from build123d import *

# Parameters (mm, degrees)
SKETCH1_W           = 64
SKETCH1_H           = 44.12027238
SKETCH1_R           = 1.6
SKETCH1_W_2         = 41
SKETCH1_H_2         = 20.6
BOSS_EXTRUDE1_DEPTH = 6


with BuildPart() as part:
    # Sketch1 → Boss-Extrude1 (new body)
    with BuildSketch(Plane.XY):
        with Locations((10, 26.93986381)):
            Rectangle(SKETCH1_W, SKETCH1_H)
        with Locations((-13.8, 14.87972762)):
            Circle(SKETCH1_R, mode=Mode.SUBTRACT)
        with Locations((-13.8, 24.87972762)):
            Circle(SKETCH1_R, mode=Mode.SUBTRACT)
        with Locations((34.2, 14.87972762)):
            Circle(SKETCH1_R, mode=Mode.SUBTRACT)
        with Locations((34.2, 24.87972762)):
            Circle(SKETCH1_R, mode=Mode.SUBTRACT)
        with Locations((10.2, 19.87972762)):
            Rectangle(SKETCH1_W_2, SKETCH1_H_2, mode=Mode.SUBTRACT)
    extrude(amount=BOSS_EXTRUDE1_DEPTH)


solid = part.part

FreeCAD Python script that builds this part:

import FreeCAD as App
import Part
import Sketcher

V = App.Vector


def add_polygon(sketch, points):
    """Adds a closed chain of lines whose ends are joined by coincident constraints."""
    first, n = sketch.GeometryCount, len(points)
    for a, b in zip(points, points[1:] + points[:1]):
        sketch.addGeometry(Part.LineSegment(App.Vector(*a, 0), App.Vector(*b, 0)), False)
    for i in range(n):
        sketch.addConstraint(Sketcher.Constraint("Coincident", first + i, 2, first + (i + 1) % n, 1))

doc = App.newDocument("Part")
params = doc.addObject("Spreadsheet::Sheet", "Params")
for row, (alias, value) in enumerate([
    ("sketch1_diameter", "3.2 mm"),
    ("sketch1_width", "64 mm"),
    ("sketch1_width2", "41 mm"),
    ("sketch1_height", "20.6 mm"),
    ("pad1_length", "6 mm"),
], start=1):
    params.set(f"A{row}", alias)
    params.set(f"B{row}", "=" + value)
    params.setAlias(f"B{row}", alias)

body = doc.addObject("PartDesign::Body", "Body")

# Sketch on XY plane
sketch1 = body.newObject("Sketcher::SketchObject", "Sketch")
sketch1.AttachmentSupport = (doc.getObject("XY_Plane"), [""])
sketch1.MapMode = "FlatFace"
add_polygon(sketch1, [(-22, 49), (-22, 4.879728), (42, 4.879728), (42, 49)])  # lines 0-3
sketch1.addGeometry(Part.Circle(V(-13.8, 14.879728, 0), V(0, 0, 1), 1.6), False)  # 4
sketch1.addGeometry(Part.Circle(V(34.2, 14.879728, 0), V(0, 0, 1), 1.6), False)  # 5
sketch1.addGeometry(Part.Circle(V(-13.8, 24.879728, 0), V(0, 0, 1), 1.6), False)  # 6
add_polygon(sketch1, [(30.7, 9.579728), (-10.3, 9.579728), (-10.3, 30.179728), (30.7, 30.179728)])  # lines 7-10
sketch1.addGeometry(Part.Circle(V(34.2, 24.879728, 0), V(0, 0, 1), 1.6), False)  # 11
sketch1.addConstraint([
    Sketcher.Constraint("Vertical", 0),
    Sketcher.Constraint("Horizontal", 1),
    Sketcher.Constraint("Vertical", 2),
    Sketcher.Constraint("Horizontal", 3),
    Sketcher.Constraint("Horizontal", 7),
    Sketcher.Constraint("Vertical", 8),
    Sketcher.Constraint("Horizontal", 9),
    Sketcher.Constraint("Vertical", 10),
    Sketcher.Constraint("Equal", 4, 5),
    Sketcher.Constraint("Equal", 5, 6),
    Sketcher.Constraint("Equal", 6, 11),
    Sketcher.Constraint("Horizontal", 4, 3, 5, 3),
    Sketcher.Constraint("Horizontal", 6, 3, 11, 3),
    Sketcher.Constraint("Vertical", 4, 3, 6, 3),
    Sketcher.Constraint("Vertical", 5, 3, 11, 3),
    Sketcher.Constraint("Diameter", 4, 3.2),
    Sketcher.Constraint("DistanceX", 1, 1, 1, 2, 64.0),
    Sketcher.Constraint("DistanceX", 7, 2, 7, 1, 41.0),
    Sketcher.Constraint("DistanceY", 8, 1, 8, 2, 20.6),
    Sketcher.Constraint("DistanceX", 0, 2, -1, 1, 22.0),
    Sketcher.Constraint("DistanceY", -1, 1, 2, 2, 49.0),
    Sketcher.Constraint("DistanceX", 4, 3, 5, 3, 48.0),
    Sketcher.Constraint("DistanceY", 4, 3, 6, 3, 10.0),
    Sketcher.Constraint("DistanceY", 0, 2, 4, 3, 10.0),
    Sketcher.Constraint("DistanceX", 4, 3, -1, 1, 13.8),
    Sketcher.Constraint("DistanceX", 7, 2, -1, 1, 10.3),
    Sketcher.Constraint("DistanceY", 7, 2, 4, 3, 5.3),
    Sketcher.Constraint("DistanceY", 0, 2, 0, 1, 44.120272),
])
sketch1.setExpression("Constraints[23]", "Params.sketch1_diameter")
sketch1.setExpression("Constraints[24]", "Params.sketch1_width")
sketch1.setExpression("Constraints[25]", "Params.sketch1_width2")
sketch1.setExpression("Constraints[26]", "Params.sketch1_height")
pad1 = body.newObject("PartDesign::Pad", "Pad")
pad1.Profile = sketch1
pad1.setExpression("Length", "Params.pad1_length")

doc.recompute()
